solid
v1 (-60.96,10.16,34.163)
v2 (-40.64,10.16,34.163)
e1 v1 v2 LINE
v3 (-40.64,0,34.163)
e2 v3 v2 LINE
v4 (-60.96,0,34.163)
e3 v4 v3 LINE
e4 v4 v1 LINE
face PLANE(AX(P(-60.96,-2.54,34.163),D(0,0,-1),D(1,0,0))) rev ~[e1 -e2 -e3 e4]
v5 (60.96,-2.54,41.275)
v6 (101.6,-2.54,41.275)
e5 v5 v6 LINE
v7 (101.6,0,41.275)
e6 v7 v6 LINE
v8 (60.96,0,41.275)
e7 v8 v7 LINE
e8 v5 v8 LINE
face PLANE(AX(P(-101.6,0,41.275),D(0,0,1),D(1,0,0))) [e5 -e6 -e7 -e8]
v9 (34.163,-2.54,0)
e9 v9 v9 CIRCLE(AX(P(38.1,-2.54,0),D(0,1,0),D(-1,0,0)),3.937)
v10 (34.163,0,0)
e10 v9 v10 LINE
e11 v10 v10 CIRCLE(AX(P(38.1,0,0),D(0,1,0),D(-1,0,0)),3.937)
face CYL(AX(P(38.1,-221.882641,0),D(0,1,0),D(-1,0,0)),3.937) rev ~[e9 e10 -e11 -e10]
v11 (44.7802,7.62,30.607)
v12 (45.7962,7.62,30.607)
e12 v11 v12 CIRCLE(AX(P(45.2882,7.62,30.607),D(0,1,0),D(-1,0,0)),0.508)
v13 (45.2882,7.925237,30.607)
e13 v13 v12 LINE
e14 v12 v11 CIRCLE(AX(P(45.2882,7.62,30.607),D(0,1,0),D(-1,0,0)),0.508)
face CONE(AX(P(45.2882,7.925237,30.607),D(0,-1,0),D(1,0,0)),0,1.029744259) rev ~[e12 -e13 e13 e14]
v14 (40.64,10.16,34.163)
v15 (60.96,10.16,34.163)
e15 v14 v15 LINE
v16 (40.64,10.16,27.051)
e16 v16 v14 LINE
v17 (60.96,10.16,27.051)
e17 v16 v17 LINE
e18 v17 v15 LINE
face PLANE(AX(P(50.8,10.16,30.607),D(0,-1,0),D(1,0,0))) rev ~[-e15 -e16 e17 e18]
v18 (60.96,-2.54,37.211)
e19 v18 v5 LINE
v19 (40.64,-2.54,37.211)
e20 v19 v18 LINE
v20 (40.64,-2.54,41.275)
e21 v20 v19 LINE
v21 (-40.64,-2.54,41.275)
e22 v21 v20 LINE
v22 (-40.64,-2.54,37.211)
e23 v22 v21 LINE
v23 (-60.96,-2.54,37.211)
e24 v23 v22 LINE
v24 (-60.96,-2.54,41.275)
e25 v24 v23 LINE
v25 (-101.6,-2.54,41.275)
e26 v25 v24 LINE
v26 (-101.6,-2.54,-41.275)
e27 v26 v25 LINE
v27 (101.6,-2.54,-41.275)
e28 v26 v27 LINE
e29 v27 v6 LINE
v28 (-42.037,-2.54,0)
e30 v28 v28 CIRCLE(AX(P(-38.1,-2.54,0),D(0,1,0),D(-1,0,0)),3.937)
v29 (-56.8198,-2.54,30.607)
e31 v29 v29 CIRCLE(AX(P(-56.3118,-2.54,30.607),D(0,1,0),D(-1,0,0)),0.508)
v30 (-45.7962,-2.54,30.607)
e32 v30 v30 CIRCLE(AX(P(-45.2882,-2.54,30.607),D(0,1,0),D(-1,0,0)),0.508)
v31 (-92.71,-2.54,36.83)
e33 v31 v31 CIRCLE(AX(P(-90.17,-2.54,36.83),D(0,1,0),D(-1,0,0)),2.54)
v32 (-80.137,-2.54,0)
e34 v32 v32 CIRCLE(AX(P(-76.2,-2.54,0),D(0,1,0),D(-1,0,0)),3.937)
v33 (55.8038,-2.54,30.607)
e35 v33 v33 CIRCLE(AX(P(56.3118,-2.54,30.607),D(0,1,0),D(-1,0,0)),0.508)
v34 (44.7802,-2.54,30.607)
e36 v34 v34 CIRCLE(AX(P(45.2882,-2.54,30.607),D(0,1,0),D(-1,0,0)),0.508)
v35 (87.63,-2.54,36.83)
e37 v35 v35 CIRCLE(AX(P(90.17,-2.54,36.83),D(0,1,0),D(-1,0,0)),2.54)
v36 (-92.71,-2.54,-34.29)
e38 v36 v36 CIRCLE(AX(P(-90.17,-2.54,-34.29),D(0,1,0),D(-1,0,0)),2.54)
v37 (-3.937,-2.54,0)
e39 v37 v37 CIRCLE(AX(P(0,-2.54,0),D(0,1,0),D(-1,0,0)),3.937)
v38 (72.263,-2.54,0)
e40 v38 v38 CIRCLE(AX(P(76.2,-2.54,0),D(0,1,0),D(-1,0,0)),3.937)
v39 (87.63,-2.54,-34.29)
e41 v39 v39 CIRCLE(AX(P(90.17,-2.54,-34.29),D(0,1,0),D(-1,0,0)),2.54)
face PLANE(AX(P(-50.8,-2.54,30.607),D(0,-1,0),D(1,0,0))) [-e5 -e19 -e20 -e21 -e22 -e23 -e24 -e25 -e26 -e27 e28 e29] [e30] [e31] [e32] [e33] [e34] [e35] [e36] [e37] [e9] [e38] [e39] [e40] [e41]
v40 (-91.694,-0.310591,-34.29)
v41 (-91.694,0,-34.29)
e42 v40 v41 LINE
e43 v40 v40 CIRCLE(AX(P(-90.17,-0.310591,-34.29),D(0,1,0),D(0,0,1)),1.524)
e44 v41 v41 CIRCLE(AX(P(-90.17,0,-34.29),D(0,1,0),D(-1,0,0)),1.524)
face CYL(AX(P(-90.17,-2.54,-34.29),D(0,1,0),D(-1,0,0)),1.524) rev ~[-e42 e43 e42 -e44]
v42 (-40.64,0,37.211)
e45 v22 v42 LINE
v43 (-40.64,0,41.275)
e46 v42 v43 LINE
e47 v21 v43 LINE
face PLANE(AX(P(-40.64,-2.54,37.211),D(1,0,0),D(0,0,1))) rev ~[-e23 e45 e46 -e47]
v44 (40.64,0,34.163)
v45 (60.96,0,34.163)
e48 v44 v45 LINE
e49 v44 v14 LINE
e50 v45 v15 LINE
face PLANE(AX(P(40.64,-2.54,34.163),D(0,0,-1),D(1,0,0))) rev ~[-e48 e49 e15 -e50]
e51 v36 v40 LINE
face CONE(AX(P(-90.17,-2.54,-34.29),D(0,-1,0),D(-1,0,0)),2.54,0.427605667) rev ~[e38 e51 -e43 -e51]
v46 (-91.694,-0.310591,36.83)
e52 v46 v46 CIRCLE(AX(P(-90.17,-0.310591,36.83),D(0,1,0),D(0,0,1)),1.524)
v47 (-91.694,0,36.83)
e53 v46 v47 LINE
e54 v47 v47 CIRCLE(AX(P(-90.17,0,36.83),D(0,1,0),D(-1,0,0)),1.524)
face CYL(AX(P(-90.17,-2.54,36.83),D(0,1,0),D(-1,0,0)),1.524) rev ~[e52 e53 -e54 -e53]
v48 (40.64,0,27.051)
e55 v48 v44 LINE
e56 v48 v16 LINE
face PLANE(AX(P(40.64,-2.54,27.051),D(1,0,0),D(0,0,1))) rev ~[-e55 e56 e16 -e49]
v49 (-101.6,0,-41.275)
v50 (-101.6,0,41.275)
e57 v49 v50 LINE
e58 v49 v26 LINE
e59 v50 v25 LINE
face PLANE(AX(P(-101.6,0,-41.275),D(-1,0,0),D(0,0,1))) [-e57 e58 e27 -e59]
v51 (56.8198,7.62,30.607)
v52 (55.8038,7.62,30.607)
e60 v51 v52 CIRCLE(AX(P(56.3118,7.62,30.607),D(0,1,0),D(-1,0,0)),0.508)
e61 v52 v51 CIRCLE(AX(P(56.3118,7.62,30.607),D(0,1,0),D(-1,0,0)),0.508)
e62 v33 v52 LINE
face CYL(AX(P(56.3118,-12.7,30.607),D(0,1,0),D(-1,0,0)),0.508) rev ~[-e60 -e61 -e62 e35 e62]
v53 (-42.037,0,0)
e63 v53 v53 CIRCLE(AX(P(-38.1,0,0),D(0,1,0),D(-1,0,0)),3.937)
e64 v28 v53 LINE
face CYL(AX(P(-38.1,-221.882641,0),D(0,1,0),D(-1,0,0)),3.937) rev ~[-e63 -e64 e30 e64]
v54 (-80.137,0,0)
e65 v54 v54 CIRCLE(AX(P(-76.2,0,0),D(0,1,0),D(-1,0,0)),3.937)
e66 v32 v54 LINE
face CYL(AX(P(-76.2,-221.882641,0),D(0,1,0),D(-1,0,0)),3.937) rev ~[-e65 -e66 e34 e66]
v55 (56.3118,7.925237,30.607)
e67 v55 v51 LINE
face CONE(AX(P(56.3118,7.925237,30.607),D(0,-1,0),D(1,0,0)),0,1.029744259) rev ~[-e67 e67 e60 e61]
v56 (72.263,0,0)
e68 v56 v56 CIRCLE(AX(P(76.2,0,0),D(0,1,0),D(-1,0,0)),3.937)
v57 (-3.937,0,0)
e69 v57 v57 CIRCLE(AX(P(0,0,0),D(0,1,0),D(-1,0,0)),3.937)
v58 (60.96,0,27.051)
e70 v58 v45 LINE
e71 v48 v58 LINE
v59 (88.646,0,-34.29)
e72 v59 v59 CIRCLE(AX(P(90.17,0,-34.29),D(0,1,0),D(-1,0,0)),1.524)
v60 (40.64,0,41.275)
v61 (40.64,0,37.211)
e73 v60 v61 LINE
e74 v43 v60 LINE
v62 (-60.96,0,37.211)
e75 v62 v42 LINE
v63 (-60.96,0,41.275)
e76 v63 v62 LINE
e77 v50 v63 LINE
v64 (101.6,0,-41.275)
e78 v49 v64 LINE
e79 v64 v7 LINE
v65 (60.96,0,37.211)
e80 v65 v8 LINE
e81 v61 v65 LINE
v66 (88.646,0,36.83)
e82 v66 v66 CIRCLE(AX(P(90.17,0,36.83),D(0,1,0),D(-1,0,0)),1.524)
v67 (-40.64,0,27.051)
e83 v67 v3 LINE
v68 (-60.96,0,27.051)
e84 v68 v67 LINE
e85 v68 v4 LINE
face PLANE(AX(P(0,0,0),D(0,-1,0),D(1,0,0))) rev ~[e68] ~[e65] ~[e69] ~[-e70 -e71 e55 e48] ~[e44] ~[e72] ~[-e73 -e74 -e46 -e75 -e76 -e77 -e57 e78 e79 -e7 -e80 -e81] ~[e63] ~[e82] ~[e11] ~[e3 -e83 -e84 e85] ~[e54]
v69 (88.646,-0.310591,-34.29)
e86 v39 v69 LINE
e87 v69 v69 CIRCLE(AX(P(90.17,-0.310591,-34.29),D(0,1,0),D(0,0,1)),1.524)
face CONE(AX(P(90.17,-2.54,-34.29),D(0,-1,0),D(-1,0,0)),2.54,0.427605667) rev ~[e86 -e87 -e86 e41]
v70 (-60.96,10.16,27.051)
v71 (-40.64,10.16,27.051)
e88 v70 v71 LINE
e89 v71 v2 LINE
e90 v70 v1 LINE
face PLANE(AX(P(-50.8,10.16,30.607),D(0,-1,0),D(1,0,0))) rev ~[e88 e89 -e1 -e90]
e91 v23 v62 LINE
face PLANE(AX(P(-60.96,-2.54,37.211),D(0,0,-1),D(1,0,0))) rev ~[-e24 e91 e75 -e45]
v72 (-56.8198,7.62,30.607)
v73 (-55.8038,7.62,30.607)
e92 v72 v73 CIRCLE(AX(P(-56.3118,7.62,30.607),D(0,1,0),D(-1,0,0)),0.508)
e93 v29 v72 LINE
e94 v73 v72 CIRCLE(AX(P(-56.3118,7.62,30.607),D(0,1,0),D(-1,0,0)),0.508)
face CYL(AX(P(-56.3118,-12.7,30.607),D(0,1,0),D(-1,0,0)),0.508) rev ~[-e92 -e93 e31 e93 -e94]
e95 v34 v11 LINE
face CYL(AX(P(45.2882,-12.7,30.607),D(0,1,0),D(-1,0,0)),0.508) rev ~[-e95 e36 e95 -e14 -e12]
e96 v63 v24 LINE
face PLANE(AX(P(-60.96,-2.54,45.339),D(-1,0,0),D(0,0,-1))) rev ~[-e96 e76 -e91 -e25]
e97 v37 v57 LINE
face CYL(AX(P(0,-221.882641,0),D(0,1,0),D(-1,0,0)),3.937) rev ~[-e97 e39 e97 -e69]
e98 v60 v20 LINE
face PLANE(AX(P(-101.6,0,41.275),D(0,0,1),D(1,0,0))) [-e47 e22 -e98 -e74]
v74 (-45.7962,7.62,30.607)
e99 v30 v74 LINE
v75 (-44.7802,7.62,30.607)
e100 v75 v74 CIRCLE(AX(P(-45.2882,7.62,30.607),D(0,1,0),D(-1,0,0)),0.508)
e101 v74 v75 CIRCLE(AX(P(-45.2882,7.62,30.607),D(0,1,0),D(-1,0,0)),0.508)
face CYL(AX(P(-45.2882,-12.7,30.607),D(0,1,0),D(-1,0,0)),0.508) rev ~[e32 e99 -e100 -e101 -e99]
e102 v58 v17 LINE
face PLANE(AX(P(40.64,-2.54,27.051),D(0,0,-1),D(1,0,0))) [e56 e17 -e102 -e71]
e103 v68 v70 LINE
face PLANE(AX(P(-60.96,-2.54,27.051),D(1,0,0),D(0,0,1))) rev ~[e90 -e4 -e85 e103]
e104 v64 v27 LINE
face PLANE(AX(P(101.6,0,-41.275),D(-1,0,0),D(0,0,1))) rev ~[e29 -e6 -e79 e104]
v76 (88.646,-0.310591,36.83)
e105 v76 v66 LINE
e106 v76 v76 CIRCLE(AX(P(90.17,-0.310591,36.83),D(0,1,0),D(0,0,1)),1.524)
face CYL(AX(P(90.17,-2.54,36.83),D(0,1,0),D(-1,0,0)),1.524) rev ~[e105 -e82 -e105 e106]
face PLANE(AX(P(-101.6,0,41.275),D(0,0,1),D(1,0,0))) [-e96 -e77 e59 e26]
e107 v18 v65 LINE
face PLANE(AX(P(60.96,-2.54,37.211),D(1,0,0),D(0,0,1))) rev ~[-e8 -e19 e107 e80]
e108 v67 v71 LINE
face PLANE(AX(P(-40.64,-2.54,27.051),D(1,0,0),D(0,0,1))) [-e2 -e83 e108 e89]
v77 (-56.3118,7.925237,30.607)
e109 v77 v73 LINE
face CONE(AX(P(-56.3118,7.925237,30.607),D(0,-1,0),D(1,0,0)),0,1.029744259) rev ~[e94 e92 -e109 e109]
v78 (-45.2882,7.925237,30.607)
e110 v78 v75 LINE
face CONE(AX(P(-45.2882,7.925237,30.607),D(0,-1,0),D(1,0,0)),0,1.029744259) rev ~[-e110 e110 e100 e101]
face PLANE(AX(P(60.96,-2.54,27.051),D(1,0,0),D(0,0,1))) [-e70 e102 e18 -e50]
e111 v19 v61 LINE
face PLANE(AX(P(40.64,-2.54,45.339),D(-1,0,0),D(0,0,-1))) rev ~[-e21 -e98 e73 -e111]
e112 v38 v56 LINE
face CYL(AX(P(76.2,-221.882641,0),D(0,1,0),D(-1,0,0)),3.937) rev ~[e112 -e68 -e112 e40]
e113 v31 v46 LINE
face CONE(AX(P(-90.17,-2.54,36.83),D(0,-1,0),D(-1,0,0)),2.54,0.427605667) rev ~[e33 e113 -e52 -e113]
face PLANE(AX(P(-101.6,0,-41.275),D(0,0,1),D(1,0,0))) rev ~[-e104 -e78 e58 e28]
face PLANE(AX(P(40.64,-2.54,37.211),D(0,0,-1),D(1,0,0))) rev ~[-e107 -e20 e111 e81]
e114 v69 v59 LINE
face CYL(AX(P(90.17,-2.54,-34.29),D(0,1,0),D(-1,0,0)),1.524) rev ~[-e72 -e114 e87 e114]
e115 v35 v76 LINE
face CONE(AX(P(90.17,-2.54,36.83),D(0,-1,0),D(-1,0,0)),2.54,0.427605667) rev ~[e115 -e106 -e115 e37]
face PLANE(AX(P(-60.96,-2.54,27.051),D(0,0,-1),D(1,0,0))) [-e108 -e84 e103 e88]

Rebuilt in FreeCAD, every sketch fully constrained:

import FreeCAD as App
import Part
import Sketcher
from FreeCAD import Vector
Q = App.Units.Quantity


def add_polygon(sketch, points):
    """Adds a closed chain of lines whose ends are joined by coincident constraints."""
    first, n = sketch.GeometryCount, len(points)
    for a, b in zip(points, points[1:] + points[:1]):
        sketch.addGeometry(Part.LineSegment(App.Vector(*a, 0), App.Vector(*b, 0)), False)
    for i in range(n):
        sketch.addConstraint(Sketcher.Constraint("Coincident", first + i, 2, first + (i + 1) % n, 1))

doc = App.newDocument("Part")
body = doc.addObject("PartDesign::Body", "Body")

sketch1 = body.newObject("Sketcher::SketchObject", "Sketch")
sketch1.AttachmentSupport = (doc.getObject("XZ_Plane"), [""])
sketch1.MapMode = "FlatFace"
add_polygon(sketch1, [(-101.6, 41.275), (-101.6, -41.275), (101.6, -41.275), (101.6, 41.275)])
sketch1.addConstraint([
    Sketcher.Constraint("Vertical", 0),
    Sketcher.Constraint("Horizontal", 1),
    Sketcher.Constraint("Vertical", 2),
    Sketcher.Constraint("Horizontal", 3),
    Sketcher.Constraint("Symmetric", 0, 2, 2, 2, -1, 1),
    Sketcher.Constraint("DistanceX", 1, 1, 1, 2, Q("8 in")),
    Sketcher.Constraint("DistanceY", 0, 2, 0, 1, Q("3.25 in")),
])
pad1 = body.newObject("PartDesign::Pad", "Pad")
pad1.Profile = sketch1
pad1.Length = Q("0.1 in")

sketch2 = body.newObject("Sketcher::SketchObject", "Sketch001")
sketch2.AttachmentSupport = (doc.getObject("XZ_Plane"), [""])
sketch2.MapMode = "FlatFace"
sketch2.AttachmentOffset = App.Placement(Vector(0, 0, 0.1 * 25.4), App.Rotation())
sketch2.addGeometry([
    Part.Circle(Vector(-76.2, 0, 0), Vector(0, 0, 1), 3.937),
    Part.Circle(Vector(-38.1, 0, 0), Vector(0, 0, 1), 3.937),
    Part.Circle(Vector(0, 0, 0), Vector(0, 0, 1), 3.937),
    Part.Circle(Vector(38.1, 0, 0), Vector(0, 0, 1), 3.937),
    Part.Circle(Vector(76.2, 0, 0), Vector(0, 0, 1), 3.937),
], False)
sketch2.addConstraint([
    Sketcher.Constraint("Coincident", 2, 3, -1, 1),
    Sketcher.Constraint("Equal", 0, 1),
    Sketcher.Constraint("Equal", 1, 2),
    Sketcher.Constraint("Equal", 2, 3),
    Sketcher.Constraint("Equal", 3, 4),
    Sketcher.Constraint("Symmetric", 1, 3, 3, 3, -1, 1),
    Sketcher.Constraint("Symmetric", 0, 3, 4, 3, -1, 1),
    Sketcher.Constraint("PointOnObject", 0, 3, -1),
    Sketcher.Constraint("PointOnObject", 1, 3, -1),
    Sketcher.Constraint("Diameter", 0, Q("0.31 in")),
    Sketcher.Constraint("DistanceX", 0, 3, -1, 1, Q("3 in")),
    Sketcher.Constraint("DistanceX", 1, 3, 3, 3, Q("3 in")),
])
doc.recompute()
hole = body.newObject("PartDesign::Hole", "Hole")
hole.Profile = sketch2
hole.ThreadType = "None"
hole.Diameter = Q("0.31 in")
hole.DepthType = "ThroughAll"

sketch3 = body.newObject("Sketcher::SketchObject", "Sketch002")
sketch3.AttachmentSupport = (doc.getObject("XZ_Plane"), [""])
sketch3.MapMode = "FlatFace"
sketch3.AttachmentOffset = App.Placement(Vector(0, 0, 0.1 * 25.4), App.Rotation())
add_polygon(sketch3, [(-40.64, 45.339), (-60.96, 45.339), (-60.96, 37.211), (-40.64, 37.211)])
add_polygon(sketch3, [(40.64, 45.339), (40.64, 37.211), (60.96, 37.211), (60.96, 45.339)])
sketch3.addConstraint([
    Sketcher.Constraint("Horizontal", 0),
    Sketcher.Constraint("Vertical", 1),
    Sketcher.Constraint("Horizontal", 2),
    Sketcher.Constraint("Vertical", 3),
    Sketcher.Constraint("Vertical", 4),
    Sketcher.Constraint("Horizontal", 5),
    Sketcher.Constraint("Vertical", 6),
    Sketcher.Constraint("Horizontal", 7),
    Sketcher.Constraint("Symmetric", 2, 2, 4, 2, -2),
    Sketcher.Constraint("Symmetric", 0, 2, 6, 2, -2),
    Sketcher.Constraint("DistanceX", 0, 2, 0, 1, Q("0.8 in")),
    Sketcher.Constraint("DistanceX", 1, 2, 4, 2, Q("4 in")),
    Sketcher.Constraint("DistanceY", 1, 2, 1, 1, Q("0.32 in")),
    Sketcher.Constraint("DistanceY", -1, 1, 0, 2, Q("1.785 in")),
])
pocket1 = body.newObject("PartDesign::Pocket", "Pocket")
pocket1.Profile = sketch3
pocket1.Length = Q("1 in")

sketch4 = body.newObject("Sketcher::SketchObject", "Sketch003")
sketch4.AttachmentSupport = (doc.getObject("XZ_Plane"), [""])
sketch4.MapMode = "FlatFace"
sketch4.AttachmentOffset = App.Placement(Vector(0, 0, 0.1 * 25.4), App.Rotation())
add_polygon(sketch4, [(-60.96, 34.163), (-60.96, 27.051), (-40.64, 27.051), (-40.64, 34.163)])
add_polygon(sketch4, [(40.64, 34.163), (40.64, 27.051), (60.96, 27.051), (60.96, 34.163)])
sketch4.addConstraint([
    Sketcher.Constraint("Vertical", 0),
    Sketcher.Constraint("Horizontal", 1),
    Sketcher.Constraint("Vertical", 2),
    Sketcher.Constraint("Horizontal", 3),
    Sketcher.Constraint("Vertical", 4),
    Sketcher.Constraint("Horizontal", 5),
    Sketcher.Constraint("Vertical", 6),
    Sketcher.Constraint("Horizontal", 7),
    Sketcher.Constraint("Symmetric", 1, 2, 4, 2, -2),
    Sketcher.Constraint("Symmetric", 3, 2, 6, 2, -2),
    Sketcher.Constraint("DistanceX", 1, 1, 1, 2, Q("0.8 in")),
    Sketcher.Constraint("DistanceX", 0, 2, 4, 2, Q("4 in")),
    Sketcher.Constraint("DistanceY", 0, 2, 0, 1, Q("0.28 in")),
    Sketcher.Constraint("DistanceY", -1, 1, 0, 2, Q("1.065 in")),
])
pad2 = body.newObject("PartDesign::Pad", "Pad001")
pad2.Profile = sketch4
pad2.Length = Q("0.5 in")
pad2.Reversed = True

sketch5 = body.newObject("Sketcher::SketchObject", "Sketch004")
sketch5.AttachmentSupport = (doc.getObject("XZ_Plane"), [""])
sketch5.MapMode = "FlatFace"
sketch5.AttachmentOffset = App.Placement(Vector(0, 0, 0.1 * 25.4), App.Rotation())
sketch5.addGeometry([
    Part.Circle(Vector(-90.17, 36.83, 0), Vector(0, 0, 1), 1.524),
    Part.Circle(Vector(-90.17, -34.29, 0), Vector(0, 0, 1), 1.524),
    Part.Circle(Vector(90.17, 36.83, 0), Vector(0, 0, 1), 1.524),
    Part.Circle(Vector(90.17, -34.29, 0), Vector(0, 0, 1), 1.524),
], False)
sketch5.addConstraint([
    Sketcher.Constraint("Equal", 0, 1),
    Sketcher.Constraint("Equal", 1, 2),
    Sketcher.Constraint("Equal", 2, 3),
    Sketcher.Constraint("Symmetric", 0, 3, 2, 3, -2),
    Sketcher.Constraint("Symmetric", 1, 3, 3, 3, -2),
    Sketcher.Constraint("Vertical", 0, 3, 1, 3),
    Sketcher.Constraint("Diameter", 0, Q("0.12 in")),
    Sketcher.Constraint("DistanceY", 1, 3, 0, 3, Q("2.8 in")),
    Sketcher.Constraint("DistanceX", 0, 3, 2, 3, Q("7.1 in")),
    Sketcher.Constraint("DistanceY", -1, 1, 0, 3, Q("1.45 in")),
])
doc.recompute()
hole2 = body.newObject("PartDesign::Hole", "Hole001")
hole2.Profile = sketch5
hole2.ThreadType = "None"
hole2.Diameter = Q("0.12 in")
hole2.DepthType = "ThroughAll"
hole2.HoleCutType = "Countersink"
hole2.HoleCutDiameter = Q("0.2 in")
hole2.HoleCutCountersinkAngle = 49

sketch6 = body.newObject("Sketcher::SketchObject", "Sketch005")
sketch6.AttachmentSupport = (doc.getObject("XZ_Plane"), [""])
sketch6.MapMode = "FlatFace"
sketch6.AttachmentOffset = App.Placement(Vector(0, 0, 0.1 * 25.4), App.Rotation())
sketch6.addGeometry([
    Part.Circle(Vector(-56.3118, 30.607, 0), Vector(0, 0, 1), 0.508),
    Part.Circle(Vector(-45.2882, 30.607, 0), Vector(0, 0, 1), 0.508),
    Part.Circle(Vector(45.2882, 30.607, 0), Vector(0, 0, 1), 0.508),
    Part.Circle(Vector(56.3118, 30.607, 0), Vector(0, 0, 1), 0.508),
], False)
sketch6.addConstraint([
    Sketcher.Constraint("Equal", 0, 1),
    Sketcher.Constraint("Equal", 1, 2),
    Sketcher.Constraint("Equal", 2, 3),
    Sketcher.Constraint("Symmetric", 1, 3, 2, 3, -2),
    Sketcher.Constraint("Symmetric", 0, 3, 3, 3, -2),
    Sketcher.Constraint("Horizontal", 0, 3, 1, 3),
    Sketcher.Constraint("Diameter", 0, Q("0.04 in")),
    Sketcher.Constraint("DistanceX", 0, 3, 2, 3, Q("4 in")),
    Sketcher.Constraint("DistanceX", 0, 3, -1, 1, Q("2.217 in")),
    Sketcher.Constraint("DistanceY", -1, 1, 0, 3, Q("1.205 in")),
])
doc.recompute()
hole3 = body.newObject("PartDesign::Hole", "Hole002")
hole3.Profile = sketch6
hole3.ThreadType = "None"
hole3.Diameter = Q("0.04 in")
hole3.DepthType = "Dimension"
hole3.Depth = Q("0.4 in")
hole3.DrillPoint = "Angled"
hole3.DrillPointAngle = 118

doc.recompute()
